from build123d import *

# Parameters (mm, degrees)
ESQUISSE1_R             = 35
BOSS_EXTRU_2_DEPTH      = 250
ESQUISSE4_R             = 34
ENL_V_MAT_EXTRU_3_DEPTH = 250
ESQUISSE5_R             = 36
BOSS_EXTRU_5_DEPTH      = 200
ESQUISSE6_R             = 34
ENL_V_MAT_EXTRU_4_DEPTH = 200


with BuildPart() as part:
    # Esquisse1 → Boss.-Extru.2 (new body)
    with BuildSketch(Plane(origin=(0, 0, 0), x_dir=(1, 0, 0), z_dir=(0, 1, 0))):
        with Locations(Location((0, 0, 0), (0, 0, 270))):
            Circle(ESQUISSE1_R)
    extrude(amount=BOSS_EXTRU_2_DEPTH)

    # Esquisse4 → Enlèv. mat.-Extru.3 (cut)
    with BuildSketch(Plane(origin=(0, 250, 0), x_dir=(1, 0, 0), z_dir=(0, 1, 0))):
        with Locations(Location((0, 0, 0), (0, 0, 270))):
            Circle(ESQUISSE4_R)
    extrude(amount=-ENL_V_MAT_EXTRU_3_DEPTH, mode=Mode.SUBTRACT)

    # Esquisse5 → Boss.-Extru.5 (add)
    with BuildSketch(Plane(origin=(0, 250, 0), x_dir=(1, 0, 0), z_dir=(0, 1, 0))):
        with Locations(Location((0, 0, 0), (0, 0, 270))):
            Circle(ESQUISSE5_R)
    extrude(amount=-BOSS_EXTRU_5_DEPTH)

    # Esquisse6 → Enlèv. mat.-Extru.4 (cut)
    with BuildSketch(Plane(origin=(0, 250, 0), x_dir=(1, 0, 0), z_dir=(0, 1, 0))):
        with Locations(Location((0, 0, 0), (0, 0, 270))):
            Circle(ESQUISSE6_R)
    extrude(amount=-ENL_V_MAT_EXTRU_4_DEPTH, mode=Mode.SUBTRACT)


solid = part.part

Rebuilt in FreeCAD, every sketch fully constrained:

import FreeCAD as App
import Part
import Sketcher

V = App.Vector

doc = App.newDocument("Part")
body = doc.addObject("PartDesign::Body", "Body")

sketch1 = body.newObject("Sketcher::SketchObject", "Sketch")
sketch1.AttachmentSupport = (doc.getObject("XZ_Plane"), [""])
sketch1.MapMode = "FlatFace"
sketch1.addGeometry(Part.Circle(V(0, 0, 0), V(0, 0, 1), 35), False)
sketch1.addConstraint([
    Sketcher.Constraint("Coincident", 0, 3, -1, 1),
    Sketcher.Constraint("Diameter", 0, 70.0),
])
pad1 = body.newObject("PartDesign::Pad", "Pad")
pad1.Profile = sketch1
pad1.Length = 250
pad1.Reversed = True

sketch2 = body.newObject("Sketcher::SketchObject", "Sketch001")
sketch2.AttachmentSupport = (doc.getObject("XZ_Plane"), [""])
sketch2.MapMode = "FlatFace"
sketch2.AttachmentOffset = App.Placement(V(0, 0, -250), App.Rotation())
sketch2.addGeometry(Part.Circle(V(0, 0, 0), V(0, 0, 1), 34), False)
sketch2.addConstraint([
    Sketcher.Constraint("Coincident", 0, 3, -1, 1),
    Sketcher.Constraint("Diameter", 0, 68.0),
])
pocket1 = body.newObject("PartDesign::Pocket", "Pocket")
pocket1.Profile = sketch2
pocket1.Length = 250
pocket1.Reversed = True

sketch3 = body.newObject("Sketcher::SketchObject", "Sketch002")
sketch3.AttachmentSupport = (doc.getObject("XZ_Plane"), [""])
sketch3.MapMode = "FlatFace"
sketch3.AttachmentOffset = App.Placement(V(0, 0, -250), App.Rotation())
sketch3.addGeometry(Part.Circle(V(0, 0, 0), V(0, 0, 1), 36), False)
sketch3.addConstraint([
    Sketcher.Constraint("Coincident", 0, 3, -1, 1),
    Sketcher.Constraint("Diameter", 0, 72.0),
])
pad2 = body.newObject("PartDesign::Pad", "Pad001")
pad2.Profile = sketch3
pad2.Length = 200

sketch4 = body.newObject("Sketcher::SketchObject", "Sketch003")
sketch4.AttachmentSupport = (doc.getObject("XZ_Plane"), [""])
sketch4.MapMode = "FlatFace"
sketch4.AttachmentOffset = App.Placement(V(0, 0, -250), App.Rotation())
sketch4.addGeometry(Part.Circle(V(0, 0, 0), V(0, 0, 1), 34), False)
sketch4.addConstraint([
    Sketcher.Constraint("Coincident", 0, 3, -1, 1),
    Sketcher.Constraint("Diameter", 0, 68.0),
])
pocket2 = body.newObject("PartDesign::Pocket", "Pocket001")
pocket2.Profile = sketch4
pocket2.Length = 200
pocket2.Reversed = True

doc.recompute()
